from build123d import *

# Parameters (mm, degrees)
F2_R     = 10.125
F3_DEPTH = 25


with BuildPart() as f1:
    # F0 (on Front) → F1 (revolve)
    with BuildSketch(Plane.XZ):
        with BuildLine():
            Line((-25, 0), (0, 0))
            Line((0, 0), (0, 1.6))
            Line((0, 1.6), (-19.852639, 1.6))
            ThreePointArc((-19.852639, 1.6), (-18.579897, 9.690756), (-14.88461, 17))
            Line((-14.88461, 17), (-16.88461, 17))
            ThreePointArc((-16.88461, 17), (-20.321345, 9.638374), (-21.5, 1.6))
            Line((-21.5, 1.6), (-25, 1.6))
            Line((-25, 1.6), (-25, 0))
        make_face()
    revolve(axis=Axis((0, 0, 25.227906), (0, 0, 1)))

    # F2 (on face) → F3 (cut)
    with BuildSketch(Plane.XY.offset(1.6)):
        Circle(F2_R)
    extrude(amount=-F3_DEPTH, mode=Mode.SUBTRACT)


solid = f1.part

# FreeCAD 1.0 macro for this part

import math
import FreeCAD as App
import Part
import Sketcher

doc = App.newDocument("Part")
params = doc.addObject("Spreadsheet::Sheet", "Params")
for row, (alias, value) in enumerate([
    ("sketch1_width", "25 mm"),
    ("sketch1_width2", "2 mm"),
    ("sketch1_width3", "3.5 mm"),
    ("sketch1_height", "1.6 mm"),
    ("revolution_angle", "360 deg"),
    ("sketch2_diameter", "20.25 mm"),
    ("pocket1_length", "25 mm"),
], start=1):
    params.set(f"A{row}", alias)
    params.set(f"B{row}", "=" + value)
    params.setAlias(f"B{row}", alias)

body = doc.addObject("PartDesign::Body", "Body")

# Sketch on XZ plane
sketch1 = doc.addObject("Sketcher::SketchObject", "Sketch")
body.addObject(sketch1)
sketch1.AttachmentSupport = (doc.XZ_Plane, [""])
sketch1.MapMode = "FlatFace"
sketch1.addGeometry([
    Part.LineSegment(App.Vector(-25, 0, 0), App.Vector(0, 0, 0)),  # 0
    Part.LineSegment(App.Vector(0, 0, 0), App.Vector(0, 1.6, 0)),  # 1
    Part.LineSegment(App.Vector(0, 1.6, 0), App.Vector(-19.9, 1.6, 0)),  # 2
    Part.ArcOfCircle(Part.Circle(App.Vector(6.5, 1.6, 0), App.Vector(0, 0, 1), 26.4), math.radians(144), math.radians(180)),  # 3
    Part.LineSegment(App.Vector(-14.9, 17, 0), App.Vector(-16.9, 17, 0)),  # 4
    Part.ArcOfCircle(Part.Circle(App.Vector(6.5, 1.6, 0), App.Vector(0, 0, 1), 28), math.radians(147), math.radians(180)),  # 5
    Part.LineSegment(App.Vector(-21.5, 1.6, 0), App.Vector(-25, 1.6, 0)),  # 6
    Part.LineSegment(App.Vector(-25, 1.6, 0), App.Vector(-25, 0, 0)),  # 7
], False)
sketch1.addConstraint([
    Sketcher.Constraint("Coincident", 0, 2, 1, 1),
    Sketcher.Constraint("Coincident", 1, 2, 2, 1),
    Sketcher.Constraint("Coincident", 2, 2, 3, 2),
    Sketcher.Constraint("Coincident", 3, 1, 4, 1),
    Sketcher.Constraint("Coincident", 4, 2, 5, 1),
    Sketcher.Constraint("Coincident", 5, 2, 6, 1),
    Sketcher.Constraint("Coincident", 6, 2, 7, 1),
    Sketcher.Constraint("Coincident", 7, 2, 0, 1),
    Sketcher.Constraint("Horizontal", 0),
    Sketcher.Constraint("Vertical", 1),
    Sketcher.Constraint("Horizontal", 2),
    Sketcher.Constraint("Horizontal", 4),
    Sketcher.Constraint("Horizontal", 6),
    Sketcher.Constraint("Vertical", 7),
    Sketcher.Constraint("Coincident", 0, 2, -1, 1),
    Sketcher.Constraint("Coincident", 5, 3, 3, 3),
    Sketcher.Constraint("Horizontal", 5, 3, 1, 2),
    Sketcher.Constraint("Horizontal", 2, 2, 5, 2),
    Sketcher.Constraint("DistanceX", 0, 1, 0, 2, 25.0),
    Sketcher.Constraint("DistanceX", 4, 2, 4, 1, 2.0),
    Sketcher.Constraint("DistanceX", 6, 2, 6, 1, 3.5),
    Sketcher.Constraint("DistanceY", 1, 1, 1, 2, 1.6),
    Sketcher.Constraint("DistanceY", -1, 1, 3, 1, 17.0),
    Sketcher.Constraint("DistanceX", -1, 1, 3, 3, 6.499999),
])
sketch1.setExpression("Constraints[18]", "Params.sketch1_width")
sketch1.setExpression("Constraints[19]", "Params.sketch1_width2")
sketch1.setExpression("Constraints[20]", "Params.sketch1_width3")
sketch1.setExpression("Constraints[21]", "Params.sketch1_height")
revolution = doc.addObject("PartDesign::Revolution", "Revolution")
body.addObject(revolution)
revolution.Profile = sketch1
revolution.ReferenceAxis = (sketch1, ["V_Axis"])
revolution.setExpression("Angle", "Params.revolution_angle")

# Sketch on XY plane
sketch2 = doc.addObject("Sketcher::SketchObject", "Sketch001")
body.addObject(sketch2)
sketch2.AttachmentSupport = (doc.XY_Plane, [""])
sketch2.MapMode = "FlatFace"
sketch2.AttachmentOffset = App.Placement(App.Vector(0, 0, 1.6), App.Rotation())
sketch2.addGeometry(Part.Circle(App.Vector(0, 0, 0), App.Vector(0, 0, 1), 10), False)
sketch2.addConstraint([
    Sketcher.Constraint("Coincident", 0, 3, -1, 1),
    Sketcher.Constraint("Diameter", 0, 20.25),
])
sketch2.setExpression("Constraints[1]", "Params.sketch2_diameter")
pocket1 = doc.addObject("PartDesign::Pocket", "Pocket")
body.addObject(pocket1)
pocket1.Profile = sketch2
pocket1.setExpression("Length", "Params.pocket1_length")

doc.recompute()
